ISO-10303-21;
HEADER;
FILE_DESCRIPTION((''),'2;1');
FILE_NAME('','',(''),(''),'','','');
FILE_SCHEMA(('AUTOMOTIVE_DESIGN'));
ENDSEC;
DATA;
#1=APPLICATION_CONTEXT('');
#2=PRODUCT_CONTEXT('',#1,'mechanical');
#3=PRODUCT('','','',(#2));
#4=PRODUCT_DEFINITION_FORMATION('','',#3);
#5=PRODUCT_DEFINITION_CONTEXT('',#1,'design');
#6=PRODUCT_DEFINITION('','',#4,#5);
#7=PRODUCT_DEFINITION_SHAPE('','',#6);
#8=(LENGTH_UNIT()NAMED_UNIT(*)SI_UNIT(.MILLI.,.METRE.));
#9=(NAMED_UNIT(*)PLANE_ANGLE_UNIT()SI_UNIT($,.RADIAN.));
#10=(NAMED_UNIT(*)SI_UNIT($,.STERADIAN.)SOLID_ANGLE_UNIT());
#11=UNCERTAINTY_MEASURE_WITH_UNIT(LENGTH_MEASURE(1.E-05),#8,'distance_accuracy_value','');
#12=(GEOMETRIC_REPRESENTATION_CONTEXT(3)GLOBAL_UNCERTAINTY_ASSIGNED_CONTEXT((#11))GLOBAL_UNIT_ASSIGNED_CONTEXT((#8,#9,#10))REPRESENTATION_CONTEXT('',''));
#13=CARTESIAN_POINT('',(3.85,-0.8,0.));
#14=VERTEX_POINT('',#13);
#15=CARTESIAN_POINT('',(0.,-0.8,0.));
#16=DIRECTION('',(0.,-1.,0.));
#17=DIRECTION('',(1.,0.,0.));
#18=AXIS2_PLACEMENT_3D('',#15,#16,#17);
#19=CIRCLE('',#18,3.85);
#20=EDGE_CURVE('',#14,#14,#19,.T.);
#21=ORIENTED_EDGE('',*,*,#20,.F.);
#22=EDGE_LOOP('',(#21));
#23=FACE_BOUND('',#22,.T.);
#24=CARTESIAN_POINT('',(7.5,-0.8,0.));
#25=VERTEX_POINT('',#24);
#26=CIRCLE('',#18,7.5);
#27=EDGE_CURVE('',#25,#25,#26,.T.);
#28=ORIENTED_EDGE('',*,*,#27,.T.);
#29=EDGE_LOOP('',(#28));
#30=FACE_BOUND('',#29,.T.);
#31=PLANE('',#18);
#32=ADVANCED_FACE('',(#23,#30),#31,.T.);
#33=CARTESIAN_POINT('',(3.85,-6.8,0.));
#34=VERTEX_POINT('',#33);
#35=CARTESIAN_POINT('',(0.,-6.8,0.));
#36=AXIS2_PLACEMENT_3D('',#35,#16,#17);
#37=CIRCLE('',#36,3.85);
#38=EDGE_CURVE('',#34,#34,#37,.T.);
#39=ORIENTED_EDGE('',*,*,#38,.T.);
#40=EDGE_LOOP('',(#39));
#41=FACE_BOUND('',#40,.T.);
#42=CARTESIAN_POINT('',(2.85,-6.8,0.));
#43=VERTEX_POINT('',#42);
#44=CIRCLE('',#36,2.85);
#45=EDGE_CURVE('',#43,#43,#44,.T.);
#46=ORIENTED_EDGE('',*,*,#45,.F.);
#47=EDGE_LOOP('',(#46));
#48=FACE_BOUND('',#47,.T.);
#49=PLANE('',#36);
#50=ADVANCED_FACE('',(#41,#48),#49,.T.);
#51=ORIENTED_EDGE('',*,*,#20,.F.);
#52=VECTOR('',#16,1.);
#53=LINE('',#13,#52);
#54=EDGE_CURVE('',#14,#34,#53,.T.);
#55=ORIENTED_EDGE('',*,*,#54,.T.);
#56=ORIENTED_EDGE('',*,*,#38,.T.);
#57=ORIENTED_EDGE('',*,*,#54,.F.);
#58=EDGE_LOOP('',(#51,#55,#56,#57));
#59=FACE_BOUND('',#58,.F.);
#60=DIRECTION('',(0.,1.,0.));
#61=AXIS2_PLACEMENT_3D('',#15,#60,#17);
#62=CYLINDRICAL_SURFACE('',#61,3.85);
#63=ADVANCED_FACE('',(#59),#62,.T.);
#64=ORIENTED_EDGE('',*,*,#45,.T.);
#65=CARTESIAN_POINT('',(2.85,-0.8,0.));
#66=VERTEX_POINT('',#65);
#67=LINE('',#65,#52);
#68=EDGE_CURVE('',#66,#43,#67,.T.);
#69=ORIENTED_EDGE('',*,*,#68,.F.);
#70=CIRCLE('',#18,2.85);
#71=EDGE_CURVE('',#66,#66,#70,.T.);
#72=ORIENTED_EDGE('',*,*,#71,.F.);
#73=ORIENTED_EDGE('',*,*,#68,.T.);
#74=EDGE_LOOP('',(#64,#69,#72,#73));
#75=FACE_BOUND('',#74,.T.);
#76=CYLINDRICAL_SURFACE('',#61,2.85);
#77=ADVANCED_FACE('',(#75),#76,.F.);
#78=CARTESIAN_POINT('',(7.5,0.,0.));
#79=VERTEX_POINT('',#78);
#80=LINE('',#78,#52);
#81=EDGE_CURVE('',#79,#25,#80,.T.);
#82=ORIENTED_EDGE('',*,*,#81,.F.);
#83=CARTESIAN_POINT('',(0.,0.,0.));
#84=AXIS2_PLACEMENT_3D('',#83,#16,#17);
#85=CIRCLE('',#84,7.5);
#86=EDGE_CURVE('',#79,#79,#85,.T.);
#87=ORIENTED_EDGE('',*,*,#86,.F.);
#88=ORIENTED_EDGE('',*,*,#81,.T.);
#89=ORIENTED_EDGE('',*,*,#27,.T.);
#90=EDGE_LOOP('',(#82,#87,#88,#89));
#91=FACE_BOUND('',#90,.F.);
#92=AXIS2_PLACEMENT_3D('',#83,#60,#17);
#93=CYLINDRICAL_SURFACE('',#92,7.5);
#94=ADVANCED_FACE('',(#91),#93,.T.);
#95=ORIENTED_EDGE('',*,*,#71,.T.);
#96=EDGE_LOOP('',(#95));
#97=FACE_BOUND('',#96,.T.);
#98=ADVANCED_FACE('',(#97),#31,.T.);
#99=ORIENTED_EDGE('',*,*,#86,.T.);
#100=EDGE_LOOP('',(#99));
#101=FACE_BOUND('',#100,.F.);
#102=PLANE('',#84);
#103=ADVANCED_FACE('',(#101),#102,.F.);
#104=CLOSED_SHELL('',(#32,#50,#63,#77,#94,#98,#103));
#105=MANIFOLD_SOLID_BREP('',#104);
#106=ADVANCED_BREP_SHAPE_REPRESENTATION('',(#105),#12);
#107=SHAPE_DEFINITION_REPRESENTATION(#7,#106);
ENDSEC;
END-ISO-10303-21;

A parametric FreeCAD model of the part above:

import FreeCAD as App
import Part
import Sketcher

V = App.Vector

doc = App.newDocument("Part")
body = doc.addObject("PartDesign::Body", "Body")

# Sketch on XZ plane
sketch1 = doc.addObject("Sketcher::SketchObject", "Sketch")
body.addObject(sketch1)
sketch1.AttachmentSupport = (doc.XZ_Plane, [""])
sketch1.MapMode = "FlatFace"
sketch1.addGeometry(Part.Circle(V(0, 0, 0), V(0, 0, 1), 8), False)
sketch1.addConstraint([
    Sketcher.Constraint("Coincident", 0, 3, -1, 1),
    Sketcher.Constraint("Diameter", 0, 15.0),
])
pad1 = doc.addObject("PartDesign::Pad", "Pad")
body.addObject(pad1)
pad1.Profile = sketch1
pad1.Length = 0.8

# Sketch on XZ plane
sketch2 = doc.addObject("Sketcher::SketchObject", "Sketch001")
body.addObject(sketch2)
sketch2.AttachmentSupport = (doc.XZ_Plane, [""])
sketch2.MapMode = "FlatFace"
sketch2.AttachmentOffset = App.Placement(V(0, 0, 0.8), App.Rotation())
sketch2.addGeometry([
    Part.Circle(V(0, 0, 0), V(0, 0, 1), 3.9),
    Part.Circle(V(0, 0, 0), V(0, 0, 1), 2.9),
], False)
sketch2.addConstraint([
    Sketcher.Constraint("Coincident", 0, 3, -1, 1),
    Sketcher.Constraint("Coincident", 1, 3, -1, 1),
    Sketcher.Constraint("Diameter", 0, 7.7),
    Sketcher.Constraint("Diameter", 1, 5.7),
])
pad2 = doc.addObject("PartDesign::Pad", "Pad001")
body.addObject(pad2)
pad2.Profile = sketch2
pad2.Length = 6

doc.recompute()
